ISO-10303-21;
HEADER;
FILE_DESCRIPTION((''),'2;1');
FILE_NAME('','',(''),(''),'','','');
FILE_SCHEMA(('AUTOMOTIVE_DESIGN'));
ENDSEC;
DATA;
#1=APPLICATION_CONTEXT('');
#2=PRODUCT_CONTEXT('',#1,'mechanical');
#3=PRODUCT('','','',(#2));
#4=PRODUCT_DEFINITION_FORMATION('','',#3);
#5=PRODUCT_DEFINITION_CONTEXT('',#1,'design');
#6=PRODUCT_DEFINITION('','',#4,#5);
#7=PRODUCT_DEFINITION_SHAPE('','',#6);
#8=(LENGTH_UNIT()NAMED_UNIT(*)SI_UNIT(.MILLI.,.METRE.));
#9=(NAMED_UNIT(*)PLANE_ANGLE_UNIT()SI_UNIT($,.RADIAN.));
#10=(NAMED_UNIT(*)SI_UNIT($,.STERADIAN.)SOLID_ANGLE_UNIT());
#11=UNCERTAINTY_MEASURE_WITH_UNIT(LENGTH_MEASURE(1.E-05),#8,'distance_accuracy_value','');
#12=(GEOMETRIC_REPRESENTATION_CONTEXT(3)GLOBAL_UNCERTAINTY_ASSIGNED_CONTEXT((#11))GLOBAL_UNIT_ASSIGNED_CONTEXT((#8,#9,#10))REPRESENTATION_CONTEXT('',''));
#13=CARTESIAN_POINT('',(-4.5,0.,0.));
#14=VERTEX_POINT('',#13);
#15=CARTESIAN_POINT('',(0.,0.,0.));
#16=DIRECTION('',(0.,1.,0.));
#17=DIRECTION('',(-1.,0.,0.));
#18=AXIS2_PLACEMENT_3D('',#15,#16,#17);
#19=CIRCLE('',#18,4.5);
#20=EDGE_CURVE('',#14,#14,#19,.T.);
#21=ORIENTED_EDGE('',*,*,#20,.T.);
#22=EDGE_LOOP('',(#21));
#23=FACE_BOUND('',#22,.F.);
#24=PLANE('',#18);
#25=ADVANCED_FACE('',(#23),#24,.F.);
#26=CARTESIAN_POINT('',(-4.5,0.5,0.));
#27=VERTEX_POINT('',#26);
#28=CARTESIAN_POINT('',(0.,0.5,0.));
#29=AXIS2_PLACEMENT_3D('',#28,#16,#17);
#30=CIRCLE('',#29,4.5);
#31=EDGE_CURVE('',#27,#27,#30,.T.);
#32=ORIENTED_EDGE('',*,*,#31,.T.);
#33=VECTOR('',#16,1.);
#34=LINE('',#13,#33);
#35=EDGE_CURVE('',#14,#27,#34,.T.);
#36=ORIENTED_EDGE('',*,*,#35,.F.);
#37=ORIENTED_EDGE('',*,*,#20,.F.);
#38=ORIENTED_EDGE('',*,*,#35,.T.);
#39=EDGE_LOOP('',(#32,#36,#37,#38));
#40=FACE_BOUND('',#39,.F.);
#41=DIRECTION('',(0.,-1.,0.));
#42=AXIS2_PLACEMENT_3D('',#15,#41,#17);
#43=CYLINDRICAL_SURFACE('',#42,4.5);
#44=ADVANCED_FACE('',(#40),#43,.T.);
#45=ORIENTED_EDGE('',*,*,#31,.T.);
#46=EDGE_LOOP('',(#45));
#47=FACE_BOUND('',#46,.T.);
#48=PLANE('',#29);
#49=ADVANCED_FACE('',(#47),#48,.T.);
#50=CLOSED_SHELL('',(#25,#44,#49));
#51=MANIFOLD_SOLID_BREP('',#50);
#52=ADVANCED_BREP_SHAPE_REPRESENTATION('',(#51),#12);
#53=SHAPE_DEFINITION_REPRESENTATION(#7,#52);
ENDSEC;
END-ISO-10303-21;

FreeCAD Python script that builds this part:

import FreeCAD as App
import Part
import Sketcher
from FreeCAD import Vector
Q = App.Units.Quantity

doc = App.newDocument("Part")
body = doc.addObject("PartDesign::Body", "Body")

sketch1 = body.newObject("Sketcher::SketchObject", "Sketch")
sketch1.AttachmentSupport = (doc.getObject("XZ_Plane"), [""])
sketch1.MapMode = "FlatFace"
sketch1.addGeometry(Part.Circle(Vector(0, 0, 0), Vector(0, 0, 1), 4.5), False)
sketch1.addConstraint(Sketcher.Constraint("Coincident", 0, 3, -1, 1))
sketch1.addConstraint(Sketcher.Constraint("Diameter", 0, Q("9 mm")))
pad1 = body.newObject("PartDesign::Pad", "Pad")
pad1.Profile = sketch1
pad1.Length = 0.5
pad1.Reversed = True

doc.recompute()
